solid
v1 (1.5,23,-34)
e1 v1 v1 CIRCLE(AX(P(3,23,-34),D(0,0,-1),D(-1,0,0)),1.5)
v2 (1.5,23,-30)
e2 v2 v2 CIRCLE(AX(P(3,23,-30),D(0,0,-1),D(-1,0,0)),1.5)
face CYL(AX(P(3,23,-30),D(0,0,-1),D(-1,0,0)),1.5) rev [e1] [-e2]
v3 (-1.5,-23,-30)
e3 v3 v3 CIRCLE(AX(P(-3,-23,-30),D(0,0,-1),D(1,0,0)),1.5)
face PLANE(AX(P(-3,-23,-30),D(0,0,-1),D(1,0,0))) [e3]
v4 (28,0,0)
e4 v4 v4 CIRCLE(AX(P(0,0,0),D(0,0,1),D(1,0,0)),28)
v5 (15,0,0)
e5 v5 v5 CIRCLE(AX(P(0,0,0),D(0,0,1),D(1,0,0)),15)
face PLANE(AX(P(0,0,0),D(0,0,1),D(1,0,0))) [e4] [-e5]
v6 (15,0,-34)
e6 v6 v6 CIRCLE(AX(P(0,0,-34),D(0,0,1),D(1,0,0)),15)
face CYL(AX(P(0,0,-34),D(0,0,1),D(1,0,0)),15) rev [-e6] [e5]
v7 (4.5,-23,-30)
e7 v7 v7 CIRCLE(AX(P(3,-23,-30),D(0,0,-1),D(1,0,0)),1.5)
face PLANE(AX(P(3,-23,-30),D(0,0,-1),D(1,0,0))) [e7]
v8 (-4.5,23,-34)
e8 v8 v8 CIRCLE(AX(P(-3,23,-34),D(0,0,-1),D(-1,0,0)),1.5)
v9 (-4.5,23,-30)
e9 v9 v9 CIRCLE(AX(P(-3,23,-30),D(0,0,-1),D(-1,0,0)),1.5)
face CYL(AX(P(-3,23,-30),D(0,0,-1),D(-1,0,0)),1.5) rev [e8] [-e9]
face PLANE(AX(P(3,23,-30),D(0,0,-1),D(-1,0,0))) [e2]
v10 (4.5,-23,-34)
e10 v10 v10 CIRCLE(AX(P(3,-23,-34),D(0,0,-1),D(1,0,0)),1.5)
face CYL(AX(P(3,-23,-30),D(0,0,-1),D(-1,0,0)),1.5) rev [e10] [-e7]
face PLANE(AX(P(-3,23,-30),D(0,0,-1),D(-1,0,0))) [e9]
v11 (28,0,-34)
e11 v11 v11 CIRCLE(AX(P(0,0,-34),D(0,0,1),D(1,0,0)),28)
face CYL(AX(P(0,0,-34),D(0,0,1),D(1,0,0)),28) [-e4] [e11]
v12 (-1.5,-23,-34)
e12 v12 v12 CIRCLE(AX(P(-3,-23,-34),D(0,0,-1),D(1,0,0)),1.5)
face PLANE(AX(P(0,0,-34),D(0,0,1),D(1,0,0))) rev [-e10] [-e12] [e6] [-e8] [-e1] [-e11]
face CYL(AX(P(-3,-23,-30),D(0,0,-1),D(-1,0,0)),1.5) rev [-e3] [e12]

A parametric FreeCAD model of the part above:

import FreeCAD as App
import Part
import Sketcher
from FreeCAD import Vector
Q = App.Units.Quantity

doc = App.newDocument("Part")
body = doc.addObject("PartDesign::Body", "Body")

# Sketch on XY plane
sketch1 = body.newObject("Sketcher::SketchObject", "Sketch")
sketch1.AttachmentSupport = (doc.getObject("XY_Plane"), [""])
sketch1.MapMode = "FlatFace"
sketch1.addGeometry([
    Part.Circle(Vector(0, 0, 0), Vector(0, 0, 1), 28),
    Part.Circle(Vector(0, 0, 0), Vector(0, 0, 1), 15),
], False)
sketch1.addConstraint([
    Sketcher.Constraint("Coincident", 0, 3, -1, 1),
    Sketcher.Constraint("Coincident", 1, 3, -1, 1),
    Sketcher.Constraint("Diameter", 0, Q("56 mm")),
    Sketcher.Constraint("Diameter", 1, Q("30 mm")),
])
pad1 = body.newObject("PartDesign::Pad", "Pad")
pad1.Profile = sketch1
pad1.Length = 34
pad1.Reversed = True

# Sketch on XY plane
sketch2 = body.newObject("Sketcher::SketchObject", "Sketch001")
sketch2.AttachmentSupport = (doc.getObject("XY_Plane"), [""])
sketch2.MapMode = "FlatFace"
sketch2.AttachmentOffset = App.Placement(Vector(0, 0, -34), App.Rotation())
sketch2.addGeometry([
    Part.Circle(Vector(-3, 23, 0), Vector(0, 0, 1), 1.5),
    Part.Circle(Vector(3, 23, 0), Vector(0, 0, 1), 1.5),
], False)
sketch2.addConstraint([
    Sketcher.Constraint("Equal", 0, 1),
    Sketcher.Constraint("Symmetric", 0, 3, 1, 3, -2),
    Sketcher.Constraint("Diameter", 0, Q("3 mm")),
    Sketcher.Constraint("DistanceX", 0, 3, -1, 1, Q("3 mm")),
    Sketcher.Constraint("DistanceY", -1, 1, 0, 3, Q("23 mm")),
])
pocket1 = body.newObject("PartDesign::Pocket", "Pocket")
pocket1.Profile = sketch2
pocket1.Length = 4
pocket1.Reversed = True
doc.recompute()

polarpattern = body.newObject("PartDesign::PolarPattern", "PolarPattern")
polarpattern.Originals = [pocket1]
polarpattern.Axis = (doc.getObject("Z_Axis"), [""])
polarpattern.Angle = 360
polarpattern.Occurrences = 2
body.Tip = polarpattern

doc.recompute()
